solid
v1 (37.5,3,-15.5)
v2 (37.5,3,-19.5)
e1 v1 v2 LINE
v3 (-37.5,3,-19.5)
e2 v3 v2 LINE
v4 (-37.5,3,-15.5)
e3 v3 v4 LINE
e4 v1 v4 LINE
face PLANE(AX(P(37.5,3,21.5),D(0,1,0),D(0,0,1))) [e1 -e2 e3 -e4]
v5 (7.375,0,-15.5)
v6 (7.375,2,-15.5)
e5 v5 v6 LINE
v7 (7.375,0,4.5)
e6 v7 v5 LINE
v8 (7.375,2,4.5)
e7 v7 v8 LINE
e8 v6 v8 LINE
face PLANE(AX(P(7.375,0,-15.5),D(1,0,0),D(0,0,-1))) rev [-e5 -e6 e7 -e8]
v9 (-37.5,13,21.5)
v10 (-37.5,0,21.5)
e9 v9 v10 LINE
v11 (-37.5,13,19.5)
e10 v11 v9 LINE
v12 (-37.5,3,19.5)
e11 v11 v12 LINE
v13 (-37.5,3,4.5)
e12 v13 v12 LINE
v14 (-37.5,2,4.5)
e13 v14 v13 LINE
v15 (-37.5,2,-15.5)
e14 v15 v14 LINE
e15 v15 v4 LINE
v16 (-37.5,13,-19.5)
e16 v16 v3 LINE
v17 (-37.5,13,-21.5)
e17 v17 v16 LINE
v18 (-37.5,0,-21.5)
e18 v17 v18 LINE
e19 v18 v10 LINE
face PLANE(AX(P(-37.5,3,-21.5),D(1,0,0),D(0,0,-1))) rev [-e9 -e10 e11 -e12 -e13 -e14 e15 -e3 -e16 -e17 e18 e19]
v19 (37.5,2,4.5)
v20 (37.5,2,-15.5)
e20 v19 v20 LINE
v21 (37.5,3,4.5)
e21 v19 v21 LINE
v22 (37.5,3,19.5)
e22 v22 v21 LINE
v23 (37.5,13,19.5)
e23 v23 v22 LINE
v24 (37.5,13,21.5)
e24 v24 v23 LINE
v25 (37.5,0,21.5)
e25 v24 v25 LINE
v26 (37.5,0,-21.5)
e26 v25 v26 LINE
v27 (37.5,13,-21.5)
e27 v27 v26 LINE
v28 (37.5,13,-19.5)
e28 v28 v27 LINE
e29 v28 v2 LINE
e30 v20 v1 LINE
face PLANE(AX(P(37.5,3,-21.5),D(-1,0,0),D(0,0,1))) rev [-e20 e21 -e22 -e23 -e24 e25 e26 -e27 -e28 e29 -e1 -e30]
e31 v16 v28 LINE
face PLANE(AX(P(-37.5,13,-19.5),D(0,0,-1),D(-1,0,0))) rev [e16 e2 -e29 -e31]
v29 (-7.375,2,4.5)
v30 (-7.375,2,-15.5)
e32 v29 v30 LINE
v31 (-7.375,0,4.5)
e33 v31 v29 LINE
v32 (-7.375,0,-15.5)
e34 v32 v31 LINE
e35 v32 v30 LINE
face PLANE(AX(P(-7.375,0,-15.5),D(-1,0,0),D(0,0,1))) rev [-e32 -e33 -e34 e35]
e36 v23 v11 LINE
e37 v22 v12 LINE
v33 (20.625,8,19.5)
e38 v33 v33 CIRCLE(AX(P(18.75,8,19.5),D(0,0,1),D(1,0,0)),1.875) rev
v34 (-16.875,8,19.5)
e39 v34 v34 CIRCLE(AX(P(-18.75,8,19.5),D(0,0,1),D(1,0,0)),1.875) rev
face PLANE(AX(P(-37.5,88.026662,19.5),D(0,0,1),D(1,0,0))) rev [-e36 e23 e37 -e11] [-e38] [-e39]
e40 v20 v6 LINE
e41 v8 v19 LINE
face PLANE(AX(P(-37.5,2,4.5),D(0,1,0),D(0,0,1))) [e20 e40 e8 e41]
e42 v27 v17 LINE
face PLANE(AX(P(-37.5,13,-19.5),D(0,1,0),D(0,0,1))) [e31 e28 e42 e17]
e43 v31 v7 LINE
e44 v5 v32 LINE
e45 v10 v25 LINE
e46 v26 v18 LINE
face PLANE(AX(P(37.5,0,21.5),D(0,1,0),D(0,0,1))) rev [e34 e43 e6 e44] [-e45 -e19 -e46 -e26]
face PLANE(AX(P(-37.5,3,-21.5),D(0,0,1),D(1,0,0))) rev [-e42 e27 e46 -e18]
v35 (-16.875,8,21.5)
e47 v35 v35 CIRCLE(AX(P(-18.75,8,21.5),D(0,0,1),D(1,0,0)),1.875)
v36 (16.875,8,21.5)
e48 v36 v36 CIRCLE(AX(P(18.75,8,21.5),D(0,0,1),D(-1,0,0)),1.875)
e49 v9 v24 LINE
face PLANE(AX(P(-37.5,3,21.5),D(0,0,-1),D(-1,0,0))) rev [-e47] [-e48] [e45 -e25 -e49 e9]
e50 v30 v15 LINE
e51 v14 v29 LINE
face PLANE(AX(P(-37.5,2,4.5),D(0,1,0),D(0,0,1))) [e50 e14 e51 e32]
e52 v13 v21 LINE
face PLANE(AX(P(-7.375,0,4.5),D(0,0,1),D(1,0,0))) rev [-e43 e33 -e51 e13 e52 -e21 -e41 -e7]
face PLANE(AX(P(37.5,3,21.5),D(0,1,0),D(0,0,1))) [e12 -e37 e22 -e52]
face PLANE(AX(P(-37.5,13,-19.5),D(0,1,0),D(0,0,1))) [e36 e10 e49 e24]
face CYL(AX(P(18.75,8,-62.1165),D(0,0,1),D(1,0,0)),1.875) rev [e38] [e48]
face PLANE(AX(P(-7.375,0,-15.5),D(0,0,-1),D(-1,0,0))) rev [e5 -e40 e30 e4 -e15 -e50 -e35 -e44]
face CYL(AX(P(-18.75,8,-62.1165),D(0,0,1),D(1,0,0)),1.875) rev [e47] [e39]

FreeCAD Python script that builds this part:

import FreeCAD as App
import Part
import Sketcher

V = App.Vector
Q = App.Units.Quantity


def add_polygon(sketch, points):
    """Adds a closed chain of lines whose ends are joined by coincident constraints."""
    first, n = sketch.GeometryCount, len(points)
    for a, b in zip(points, points[1:] + points[:1]):
        sketch.addGeometry(Part.LineSegment(App.Vector(*a, 0), App.Vector(*b, 0)), False)
    for i in range(n):
        sketch.addConstraint(Sketcher.Constraint("Coincident", first + i, 2, first + (i + 1) % n, 1))

doc = App.newDocument("Part")
params = doc.addObject("Spreadsheet::Sheet", "Params")
for row, (alias, value) in enumerate([
    ("sketch1_width", "75 mm"),
    ("sketch1_height", "43 mm"),
    ("pad1_length", "3 mm"),
    ("sketch2_width", "75 mm"),
    ("sketch2_height", "2 mm"),
    ("pad2_length", "10 mm"),
    ("sketch3_width", "75 mm"),
    ("sketch3_height", "2 mm"),
    ("pad3_length", "10 mm"),
    ("sketch4_diameter", "3.75 mm"),
    ("sketch4_width", "79 mm"),
    ("sketch4_height", "17 mm"),
    ("pocket1_length", "2 mm"),
    ("sketch5_height", "20 mm"),
    ("sketch5_width", "14.75 mm"),
    ("sketch6_width", "75 mm"),
    ("sketch6_height", "20 mm"),
    ("pocket3_length", "1 mm"),
], start=1):
    params.set(f"A{row}", alias)
    params.set(f"B{row}", "=" + value)
    params.setAlias(f"B{row}", alias)

body = doc.addObject("PartDesign::Body", "Body")

sketch1 = doc.addObject("Sketcher::SketchObject", "Sketch")
body.addObject(sketch1)
sketch1.AttachmentSupport = (doc.XZ_Plane, [""])
sketch1.MapMode = "FlatFace"
add_polygon(sketch1, [(-38, -22), (-38, 22), (38, 22), (38, -22)])
sketch1.addConstraint([
    Sketcher.Constraint("Vertical", 0),
    Sketcher.Constraint("Horizontal", 1),
    Sketcher.Constraint("Vertical", 2),
    Sketcher.Constraint("Horizontal", 3),
    Sketcher.Constraint("Symmetric", 0, 2, 2, 2, -1, 1),
    Sketcher.Constraint("DistanceX", 1, 1, 1, 2, Q("75 mm")),
    Sketcher.Constraint("DistanceY", 0, 1, 0, 2, Q("43 mm")),
])
sketch1.setExpression("Constraints[9]", "Params.sketch1_width")
sketch1.setExpression("Constraints[10]", "Params.sketch1_height")
pad1 = doc.addObject("PartDesign::Pad", "Pad")
body.addObject(pad1)
pad1.Profile = sketch1
pad1.setExpression("Length", "Params.pad1_length")
pad1.Reversed = True

sketch2 = doc.addObject("Sketcher::SketchObject", "Sketch001")
body.addObject(sketch2)
sketch2.AttachmentSupport = (doc.XZ_Plane, [""])
sketch2.MapMode = "FlatFace"
sketch2.AttachmentOffset = App.Placement(V(0, 0, -3), App.Rotation())
add_polygon(sketch2, [(-37.5, -21.5), (-37.5, -19.5), (37.5, -19.5), (37.5, -21.5)])
sketch2.addConstraint([
    Sketcher.Constraint("Vertical", 0),
    Sketcher.Constraint("Horizontal", 1),
    Sketcher.Constraint("Vertical", 2),
    Sketcher.Constraint("Horizontal", 3),
    Sketcher.Constraint("DistanceX", 1, 1, 1, 2, Q("75 mm")),
    Sketcher.Constraint("DistanceY", 0, 1, 0, 2, Q("2 mm")),
    Sketcher.Constraint("DistanceX", 0, 2, -1, 1, Q("37.5 mm")),
    Sketcher.Constraint("DistanceY", 0, 2, -1, 1, Q("19.5 mm")),
])
sketch2.setExpression("Constraints[8]", "Params.sketch2_width")
sketch2.setExpression("Constraints[9]", "Params.sketch2_height")
pad2 = doc.addObject("PartDesign::Pad", "Pad001")
body.addObject(pad2)
pad2.Profile = sketch2
pad2.setExpression("Length", "Params.pad2_length")
pad2.Reversed = True

sketch3 = doc.addObject("Sketcher::SketchObject", "Sketch002")
body.addObject(sketch3)
sketch3.AttachmentSupport = (doc.XZ_Plane, [""])
sketch3.MapMode = "FlatFace"
sketch3.AttachmentOffset = App.Placement(V(0, 0, -3), App.Rotation())
add_polygon(sketch3, [(-37.5, 19.5), (-37.5, 21.5), (37.5, 21.5), (37.5, 19.5)])
sketch3.addConstraint([
    Sketcher.Constraint("Vertical", 0),
    Sketcher.Constraint("Horizontal", 1),
    Sketcher.Constraint("Vertical", 2),
    Sketcher.Constraint("Horizontal", 3),
    Sketcher.Constraint("DistanceX", 1, 1, 1, 2, Q("75 mm")),
    Sketcher.Constraint("DistanceY", 0, 1, 0, 2, Q("2 mm")),
    Sketcher.Constraint("DistanceX", 0, 2, -1, 1, Q("37.5 mm")),
    Sketcher.Constraint("DistanceY", -1, 1, 0, 2, Q("21.5 mm")),
])
sketch3.setExpression("Constraints[8]", "Params.sketch3_width")
sketch3.setExpression("Constraints[9]", "Params.sketch3_height")
pad3 = doc.addObject("PartDesign::Pad", "Pad002")
body.addObject(pad3)
pad3.Profile = sketch3
pad3.setExpression("Length", "Params.pad3_length")
pad3.Reversed = True

sketch4 = doc.addObject("Sketcher::SketchObject", "Sketch003")
body.addObject(sketch4)
sketch4.AttachmentSupport = (doc.XY_Plane, [""])
sketch4.MapMode = "FlatFace"
sketch4.AttachmentOffset = App.Placement(V(0, 0, 21.5), App.Rotation())
add_polygon(sketch4, [(-47.2, 22.7), (-47.2, -9.7), (47.2, -9.7), (47.2, 22.7)])
add_polygon(sketch4, [(39.5, -2), (-39.5, -2), (-39.5, 15), (39.5, 15)])
sketch4.addGeometry(Part.Circle(V(18.8, 8, 0), V(0, 0, 1), 1.9), False)
sketch4.addGeometry(Part.Circle(V(-18.8, 8, 0), V(0, 0, 1), 1.9), False)
sketch4.addConstraint([
    Sketcher.Constraint("Vertical", 0),
    Sketcher.Constraint("Horizontal", 1),
    Sketcher.Constraint("Vertical", 2),
    Sketcher.Constraint("Horizontal", 3),
    Sketcher.Constraint("Horizontal", 4),
    Sketcher.Constraint("Vertical", 5),
    Sketcher.Constraint("Horizontal", 6),
    Sketcher.Constraint("Vertical", 7),
    Sketcher.Constraint("Equal", 8, 9),
    Sketcher.Constraint("Symmetric", 8, 3, 9, 3, -2),
    Sketcher.Constraint("Diameter", 8, Q("3.75 mm")),
    Sketcher.Constraint("DistanceX", 4, 2, 4, 1, Q("79 mm")),
    Sketcher.Constraint("DistanceY", 5, 1, 5, 2, Q("17 mm")),
    Sketcher.Constraint("DistanceY", -1, 1, 8, 3, Q("8 mm")),
    Sketcher.Constraint("DistanceY", 4, 2, -1, 1, Q("2 mm")),
    Sketcher.Constraint("DistanceX", 4, 2, -1, 1, Q("39.5 mm")),
    Sketcher.Constraint("DistanceX", 9, 3, 8, 3, Q("37.5 mm")),
    Sketcher.Constraint("DistanceX", 1, 1, 1, 2, Q("94.484 mm")),
    Sketcher.Constraint("DistanceY", 0, 2, 0, 1, Q("32.484 mm")),
    Sketcher.Constraint("DistanceX", 0, 2, -1, 1, Q("47.242 mm")),
    Sketcher.Constraint("DistanceY", 0, 2, -1, 1, Q("9.742 mm")),
])
sketch4.setExpression("Constraints[18]", "Params.sketch4_diameter")
sketch4.setExpression("Constraints[19]", "Params.sketch4_width")
sketch4.setExpression("Constraints[20]", "Params.sketch4_height")
pocket1 = doc.addObject("PartDesign::Pocket", "Pocket")
body.addObject(pocket1)
pocket1.Profile = sketch4
pocket1.setExpression("Length", "Params.pocket1_length")

sketch5 = doc.addObject("Sketcher::SketchObject", "Sketch004")
body.addObject(sketch5)
sketch5.AttachmentSupport = (doc.XZ_Plane, [""])
sketch5.MapMode = "FlatFace"
sketch5.AttachmentOffset = App.Placement(V(0, 0, -3), App.Rotation())
add_polygon(sketch5, [(-7, -16), (-7, 4), (7, 4), (7, -16)])
sketch5.addConstraint([
    Sketcher.Constraint("Vertical", 0),
    Sketcher.Constraint("Horizontal", 1),
    Sketcher.Constraint("Vertical", 2),
    Sketcher.Constraint("Horizontal", 3),
    Sketcher.Constraint("DistanceY", 0, 1, 0, 2, Q("20 mm")),
    Sketcher.Constraint("DistanceX", 1, 1, 1, 2, Q("14.75 mm")),
    Sketcher.Constraint("DistanceY", -1, 1, 0, 2, Q("4.5 mm")),
    Sketcher.Constraint("DistanceX", 0, 2, -1, 1, Q("7.375 mm")),
])
sketch5.setExpression("Constraints[8]", "Params.sketch5_height")
sketch5.setExpression("Constraints[9]", "Params.sketch5_width")
pocket2 = doc.addObject("PartDesign::Pocket", "Pocket001")
body.addObject(pocket2)
pocket2.Profile = sketch5
pocket2.Type = "ThroughAll"
pocket2.Reversed = True

sketch6 = doc.addObject("Sketcher::SketchObject", "Sketch005")
body.addObject(sketch6)
sketch6.AttachmentSupport = (doc.XZ_Plane, [""])
sketch6.MapMode = "FlatFace"
sketch6.AttachmentOffset = App.Placement(V(0, 0, -3), App.Rotation())
add_polygon(sketch6, [(-38, -16), (-38, 4), (38, 4), (38, -16)])
sketch6.addConstraint([
    Sketcher.Constraint("Vertical", 0),
    Sketcher.Constraint("Horizontal", 1),
    Sketcher.Constraint("Vertical", 2),
    Sketcher.Constraint("Horizontal", 3),
    Sketcher.Constraint("DistanceX", 1, 1, 1, 2, Q("75 mm")),
    Sketcher.Constraint("DistanceY", 0, 1, 0, 2, Q("20 mm")),
    Sketcher.Constraint("DistanceX", 0, 2, -1, 1, Q("37.5 mm")),
    Sketcher.Constraint("DistanceY", -1, 1, 0, 2, Q("4.5 mm")),
])
sketch6.setExpression("Constraints[8]", "Params.sketch6_width")
sketch6.setExpression("Constraints[9]", "Params.sketch6_height")
pocket3 = doc.addObject("PartDesign::Pocket", "Pocket002")
body.addObject(pocket3)
pocket3.Profile = sketch6
pocket3.setExpression("Length", "Params.pocket3_length")
pocket3.Reversed = True

doc.recompute()
